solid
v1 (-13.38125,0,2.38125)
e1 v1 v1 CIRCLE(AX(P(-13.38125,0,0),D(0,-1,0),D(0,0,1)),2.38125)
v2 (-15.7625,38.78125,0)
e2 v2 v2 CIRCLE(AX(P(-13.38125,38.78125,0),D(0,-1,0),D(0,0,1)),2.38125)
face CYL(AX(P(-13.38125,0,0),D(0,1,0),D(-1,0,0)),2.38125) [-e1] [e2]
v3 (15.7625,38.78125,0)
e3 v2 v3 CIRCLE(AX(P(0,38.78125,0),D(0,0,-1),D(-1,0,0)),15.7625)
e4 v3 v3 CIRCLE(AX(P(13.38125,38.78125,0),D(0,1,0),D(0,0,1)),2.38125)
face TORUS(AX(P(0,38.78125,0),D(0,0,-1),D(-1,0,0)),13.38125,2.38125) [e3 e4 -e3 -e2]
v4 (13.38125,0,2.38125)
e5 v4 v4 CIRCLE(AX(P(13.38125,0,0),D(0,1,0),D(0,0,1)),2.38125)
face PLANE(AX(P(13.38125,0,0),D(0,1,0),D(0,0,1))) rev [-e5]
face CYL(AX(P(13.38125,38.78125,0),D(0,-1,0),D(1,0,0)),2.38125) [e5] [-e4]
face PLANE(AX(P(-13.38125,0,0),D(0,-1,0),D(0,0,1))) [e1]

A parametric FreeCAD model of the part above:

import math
import FreeCAD as App
import Part
import Sketcher

V = App.Vector
Q = App.Units.Quantity

doc = App.newDocument("Part")
body = doc.addObject("PartDesign::Body", "Body")

sketch1 = body.newObject("Sketcher::SketchObject", "Sketch")
sketch1.AttachmentSupport = (doc.getObject("XZ_Plane"), [""])
sketch1.MapMode = "FlatFace"
sketch1.addGeometry(Part.Circle(V(13.4, 0, 0), V(0, 0, 1), 2.4), False)
sketch1.addConstraint([
    Sketcher.Constraint("PointOnObject", 0, 3, -1),
    Sketcher.Constraint("Diameter", 0, Q("0.1875 in")),
    Sketcher.Constraint("DistanceX", -1, 1, 0, 3, Q("13.38125 mm")),
])

sketch2 = body.newObject("Sketcher::SketchObject", "Sketch001")
sketch2.AttachmentSupport = (doc.getObject("XY_Plane"), [""])
sketch2.MapMode = "FlatFace"
sketch2.addGeometry([
    Part.LineSegment(V(-13, 0, 0), V(-13, 39, 0)),
    Part.ArcOfCircle(Part.Circle(V(0, 39, 0), V(0, 0, 1), 13), math.radians(0), math.radians(180)),
    Part.LineSegment(V(13, 39, 0), V(13, 0, 0)),
], False)
sketch2.addConstraint([
    Sketcher.Constraint("Tangent", 0, 2, 1, 2),
    Sketcher.Constraint("Tangent", 1, 1, 2, 1),
    Sketcher.Constraint("Vertical", 0),
    Sketcher.Constraint("Vertical", 2),
    Sketcher.Constraint("Symmetric", 0, 1, 2, 2, -1, 1),
    Sketcher.Constraint("PointOnObject", 0, 1, -1),
    Sketcher.Constraint("Radius", 1, Q("13.38125 mm")),
    Sketcher.Constraint("DistanceY", 0, 1, 0, 2, Q("38.78125 mm")),
])
doc.recompute()

additivepipe = body.newObject("PartDesign::AdditivePipe", "AdditivePipe")
additivepipe.Profile = sketch1
additivepipe.Spine = (sketch2, ["Edge1", "Edge2", "Edge3"])

doc.recompute()
